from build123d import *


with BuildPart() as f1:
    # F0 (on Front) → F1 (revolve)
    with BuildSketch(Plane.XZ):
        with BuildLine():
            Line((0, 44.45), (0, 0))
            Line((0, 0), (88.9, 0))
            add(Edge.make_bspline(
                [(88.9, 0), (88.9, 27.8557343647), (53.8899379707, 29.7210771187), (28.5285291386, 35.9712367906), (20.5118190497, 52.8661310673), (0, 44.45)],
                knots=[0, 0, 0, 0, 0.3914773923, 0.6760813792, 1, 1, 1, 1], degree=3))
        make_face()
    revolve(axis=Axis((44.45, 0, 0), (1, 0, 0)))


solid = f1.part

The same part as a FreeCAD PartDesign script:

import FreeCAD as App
import Part
import Sketcher

V = App.Vector

doc = App.newDocument("Part")
body = doc.addObject("PartDesign::Body", "Body")

# Sketch on XZ plane
sketch1 = body.newObject("Sketcher::SketchObject", "Sketch")
sketch1.AttachmentSupport = (doc.getObject("XZ_Plane"), [""])
sketch1.MapMode = "FlatFace"
sketch1.addGeometry([
    Part.LineSegment(V(0, 44.45, 0), V(0, 0, 0)),
    Part.LineSegment(V(0, 0, 0), V(88.9, 0, 0)),
    Part.BSplineCurve([V(88.9, 0, 0), V(88.9, 27.855734, 0), V(53.889938, 29.721077, 0), V(28.528529, 35.971237, 0), V(20.511819, 52.866131, 0), V(0, 44.45, 0)], [4, 1, 1, 4], [0, 0.391477392, 0.676081379, 1], False, 3, [1, 1, 1, 1, 1, 1], False),
], False)
sketch1.addConstraint([
    Sketcher.Constraint("Block", 2),
    Sketcher.Constraint("Coincident", 0, 2, 1, 1),
    Sketcher.Constraint("Coincident", 1, 2, 2, 1),
    Sketcher.Constraint("Coincident", 2, 2, 0, 1),
    Sketcher.Constraint("Vertical", 0),
    Sketcher.Constraint("Horizontal", 1),
])
revolution = body.newObject("PartDesign::Revolution", "Revolution")
revolution.Profile = sketch1
revolution.ReferenceAxis = (sketch1, ["H_Axis"])
revolution.Angle = 360

doc.recompute()
